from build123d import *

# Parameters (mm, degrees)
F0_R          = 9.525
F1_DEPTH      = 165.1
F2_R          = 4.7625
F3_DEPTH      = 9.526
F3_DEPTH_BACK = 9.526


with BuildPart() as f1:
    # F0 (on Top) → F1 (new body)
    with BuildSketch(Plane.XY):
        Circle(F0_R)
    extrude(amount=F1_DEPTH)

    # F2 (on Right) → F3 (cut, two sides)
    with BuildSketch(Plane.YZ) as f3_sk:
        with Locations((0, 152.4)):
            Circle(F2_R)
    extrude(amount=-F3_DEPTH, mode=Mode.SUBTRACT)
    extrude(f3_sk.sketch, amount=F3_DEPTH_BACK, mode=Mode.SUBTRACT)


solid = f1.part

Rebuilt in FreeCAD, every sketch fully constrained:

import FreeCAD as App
import Part
import Sketcher

V = App.Vector
Q = App.Units.Quantity

doc = App.newDocument("Part")
body = doc.addObject("PartDesign::Body", "Body")

# Sketch on XY plane
sketch1 = body.newObject("Sketcher::SketchObject", "Sketch")
sketch1.AttachmentSupport = (doc.getObject("XY_Plane"), [""])
sketch1.MapMode = "FlatFace"
sketch1.addGeometry(Part.Circle(V(0, 0, 0), V(0, 0, 1), 10), False)
sketch1.addConstraint(Sketcher.Constraint("Coincident", 0, 3, -1, 1))
sketch1.addConstraint(Sketcher.Constraint("Diameter", 0, Q("0.75 in")))
pad1 = body.newObject("PartDesign::Pad", "Pad")
pad1.Profile = sketch1
pad1.Length = Q("6.5 in")

# Sketch on YZ plane
sketch2 = body.newObject("Sketcher::SketchObject", "Sketch001")
sketch2.AttachmentSupport = (doc.getObject("YZ_Plane"), [""])
sketch2.MapMode = "FlatFace"
sketch2.addGeometry(Part.Circle(V(0, 152.4, 0), V(0, 0, 1), 4.8), False)
sketch2.addConstraint(Sketcher.Constraint("PointOnObject", 0, 3, -2))
sketch2.addConstraint(Sketcher.Constraint("Diameter", 0, Q("0.375 in")))
sketch2.addConstraint(Sketcher.Constraint("DistanceY", -1, 1, 0, 3, Q("6 in")))
pocket1 = body.newObject("PartDesign::Pocket", "Pocket")
pocket1.Profile = sketch2
pocket1.Type = "ThroughAll"
pocket1.Midplane = True

doc.recompute()
